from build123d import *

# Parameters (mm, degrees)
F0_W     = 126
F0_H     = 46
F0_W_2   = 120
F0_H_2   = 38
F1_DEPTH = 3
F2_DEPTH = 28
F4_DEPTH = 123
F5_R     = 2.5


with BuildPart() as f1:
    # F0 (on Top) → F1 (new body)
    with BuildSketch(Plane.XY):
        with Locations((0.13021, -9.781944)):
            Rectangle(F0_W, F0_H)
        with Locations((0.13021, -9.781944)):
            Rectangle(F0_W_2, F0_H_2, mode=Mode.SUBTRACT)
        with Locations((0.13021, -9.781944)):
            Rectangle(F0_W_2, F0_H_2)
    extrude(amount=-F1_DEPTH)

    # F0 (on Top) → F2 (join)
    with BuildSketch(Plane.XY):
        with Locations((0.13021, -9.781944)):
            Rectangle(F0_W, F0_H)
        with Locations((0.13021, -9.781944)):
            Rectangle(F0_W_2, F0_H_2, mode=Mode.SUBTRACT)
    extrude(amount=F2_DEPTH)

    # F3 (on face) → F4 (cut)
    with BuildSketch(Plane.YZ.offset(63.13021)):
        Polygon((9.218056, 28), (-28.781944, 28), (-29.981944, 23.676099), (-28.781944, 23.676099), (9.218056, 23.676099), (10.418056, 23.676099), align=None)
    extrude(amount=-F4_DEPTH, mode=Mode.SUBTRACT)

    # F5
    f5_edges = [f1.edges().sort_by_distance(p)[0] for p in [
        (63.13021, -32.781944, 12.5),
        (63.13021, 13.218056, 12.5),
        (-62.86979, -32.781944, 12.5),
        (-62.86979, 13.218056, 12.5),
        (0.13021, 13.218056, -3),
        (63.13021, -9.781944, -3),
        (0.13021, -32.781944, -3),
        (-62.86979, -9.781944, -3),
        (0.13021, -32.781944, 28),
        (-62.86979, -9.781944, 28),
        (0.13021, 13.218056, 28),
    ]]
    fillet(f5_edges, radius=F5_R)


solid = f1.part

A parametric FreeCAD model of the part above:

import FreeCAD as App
import Part
import Sketcher
from FreeCAD import Vector
Q = App.Units.Quantity


def edges_at(feature, points):
    """Names of the edges that pass closest to the given points."""
    edges = feature.Shape.Edges
    near = lambda p: min(range(len(edges)), key=lambda i: edges[i].distToShape(Part.Vertex(*p))[0])
    return sorted({f"Edge{near(p) + 1}" for p in points})

doc = App.newDocument("Part")
body = doc.addObject("PartDesign::Body", "Body")

# Sketch on XY plane
sketch1 = doc.addObject("Sketcher::SketchObject", "Sketch")
body.addObject(sketch1)
sketch1.AttachmentSupport = (doc.XY_Plane, [""])
sketch1.MapMode = "FlatFace"
sketch1.addGeometry([
    Part.LineSegment(Vector(-63, 13, 0), Vector(-63, -33, 0)),
    Part.LineSegment(Vector(-63, -33, 0), Vector(63, -33, 0)),
    Part.LineSegment(Vector(63, -33, 0), Vector(63, 13, 0)),
    Part.LineSegment(Vector(63, 13, 0), Vector(-63, 13, 0)),
], False)
sketch1.addConstraint([
    Sketcher.Constraint("Coincident", 0, 2, 1, 1),
    Sketcher.Constraint("Coincident", 1, 2, 2, 1),
    Sketcher.Constraint("Coincident", 2, 2, 3, 1),
    Sketcher.Constraint("Coincident", 3, 2, 0, 1),
    Sketcher.Constraint("Vertical", 0),
    Sketcher.Constraint("Horizontal", 1),
    Sketcher.Constraint("Vertical", 2),
    Sketcher.Constraint("Horizontal", 3),
    Sketcher.Constraint("DistanceX", 1, 1, 1, 2, Q("126 mm")),
    Sketcher.Constraint("DistanceY", 0, 2, 0, 1, Q("46 mm")),
    Sketcher.Constraint("DistanceX", 0, 2, -1, 1, Q("62.86979 mm")),
    Sketcher.Constraint("DistanceY", 0, 2, -1, 1, Q("32.781944 mm")),
])
pad1 = doc.addObject("PartDesign::Pad", "Pad")
body.addObject(pad1)
pad1.Profile = sketch1
pad1.Length = 3
pad1.Reversed = True

# Sketch on XY plane
sketch2 = doc.addObject("Sketcher::SketchObject", "Sketch001")
body.addObject(sketch2)
sketch2.AttachmentSupport = (doc.XY_Plane, [""])
sketch2.MapMode = "FlatFace"
sketch2.addGeometry([
    Part.LineSegment(Vector(-63, 13, 0), Vector(-63, -33, 0)),  # 0
    Part.LineSegment(Vector(-63, -33, 0), Vector(63, -33, 0)),  # 1
    Part.LineSegment(Vector(63, -33, 0), Vector(63, 13, 0)),  # 2
    Part.LineSegment(Vector(63, 13, 0), Vector(-63, 13, 0)),  # 3
    Part.LineSegment(Vector(60, -29, 0), Vector(-60, -29, 0)),  # 4
    Part.LineSegment(Vector(-60, -29, 0), Vector(-60, 9, 0)),  # 5
    Part.LineSegment(Vector(-60, 9, 0), Vector(60, 9, 0)),  # 6
    Part.LineSegment(Vector(60, 9, 0), Vector(60, -29, 0)),  # 7
], False)
sketch2.addConstraint([
    Sketcher.Constraint("Coincident", 0, 2, 1, 1),
    Sketcher.Constraint("Coincident", 1, 2, 2, 1),
    Sketcher.Constraint("Coincident", 2, 2, 3, 1),
    Sketcher.Constraint("Coincident", 3, 2, 0, 1),
    Sketcher.Constraint("Coincident", 4, 2, 5, 1),
    Sketcher.Constraint("Coincident", 5, 2, 6, 1),
    Sketcher.Constraint("Coincident", 6, 2, 7, 1),
    Sketcher.Constraint("Coincident", 7, 2, 4, 1),
    Sketcher.Constraint("Vertical", 0),
    Sketcher.Constraint("Horizontal", 1),
    Sketcher.Constraint("Vertical", 2),
    Sketcher.Constraint("Horizontal", 3),
    Sketcher.Constraint("Horizontal", 4),
    Sketcher.Constraint("Vertical", 5),
    Sketcher.Constraint("Horizontal", 6),
    Sketcher.Constraint("Vertical", 7),
    Sketcher.Constraint("DistanceX", 1, 1, 1, 2, Q("126 mm")),
    Sketcher.Constraint("DistanceX", 4, 2, 4, 1, Q("120 mm")),
    Sketcher.Constraint("DistanceY", 0, 2, 0, 1, Q("46 mm")),
    Sketcher.Constraint("DistanceY", 5, 1, 5, 2, Q("38 mm")),
    Sketcher.Constraint("DistanceX", 0, 2, 4, 2, Q("3 mm")),
    Sketcher.Constraint("DistanceY", 0, 2, 4, 2, Q("4 mm")),
    Sketcher.Constraint("DistanceX", 0, 2, -1, 1, Q("62.86979 mm")),
    Sketcher.Constraint("DistanceY", 0, 2, -1, 1, Q("32.781944 mm")),
])
pad2 = doc.addObject("PartDesign::Pad", "Pad001")
body.addObject(pad2)
pad2.Profile = sketch2
pad2.Length = 28

# Sketch on YZ plane
sketch3 = doc.addObject("Sketcher::SketchObject", "Sketch002")
body.addObject(sketch3)
sketch3.AttachmentSupport = (doc.YZ_Plane, [""])
sketch3.MapMode = "FlatFace"
sketch3.AttachmentOffset = App.Placement(Vector(0, 0, 63.13021), App.Rotation())
sketch3.addGeometry([
    Part.LineSegment(Vector(9.2, 28, 0), Vector(-28.8, 28, 0)),
    Part.LineSegment(Vector(-28.8, 28, 0), Vector(-30, 23.7, 0)),
    Part.LineSegment(Vector(-30, 23.7, 0), Vector(10.4, 23.7, 0)),
    Part.LineSegment(Vector(10.4, 23.7, 0), Vector(9.2, 28, 0)),
], False)
sketch3.addConstraint([
    Sketcher.Constraint("Coincident", 0, 2, 1, 1),
    Sketcher.Constraint("Coincident", 1, 2, 2, 1),
    Sketcher.Constraint("Coincident", 2, 2, 3, 1),
    Sketcher.Constraint("Coincident", 3, 2, 0, 1),
    Sketcher.Constraint("Horizontal", 0),
    Sketcher.Constraint("Horizontal", 2),
    Sketcher.Constraint("Equal", 1, 3),
    Sketcher.Constraint("DistanceX", 0, 2, 0, 1, Q("38 mm")),
    Sketcher.Constraint("DistanceX", 2, 1, 2, 2, Q("40.4 mm")),
    Sketcher.Constraint("DistanceY", -1, 1, 0, 2, Q("28 mm")),
    Sketcher.Constraint("DistanceY", -1, 1, 1, 2, Q("23.676099 mm")),
    Sketcher.Constraint("DistanceX", 0, 2, -1, 1, Q("28.781944 mm")),
])
pocket1 = doc.addObject("PartDesign::Pocket", "Pocket")
body.addObject(pocket1)
pocket1.Profile = sketch3
pocket1.Length = 123
doc.recompute()

fillet = doc.addObject("PartDesign::Fillet", "Fillet")
body.addObject(fillet)
fillet.Base = (pocket1, edges_at(pocket1, [
    (63.13, -32.782, 12.5),
    (63.13, 13.218, 12.5),
    (-62.87, -32.782, 12.5),
    (-62.87, 13.218, 12.5),
    (0.13, 13.218, -3),
    (63.13, -9.782, -3),
    (0.13, -32.782, -3),
    (-62.87, -9.782, -3),
    (0.13, -32.782, 28),
    (-62.87, -9.782, 28),
    (0.13, 13.218, 28),
]))
fillet.Radius = 2.5

doc.recompute()
